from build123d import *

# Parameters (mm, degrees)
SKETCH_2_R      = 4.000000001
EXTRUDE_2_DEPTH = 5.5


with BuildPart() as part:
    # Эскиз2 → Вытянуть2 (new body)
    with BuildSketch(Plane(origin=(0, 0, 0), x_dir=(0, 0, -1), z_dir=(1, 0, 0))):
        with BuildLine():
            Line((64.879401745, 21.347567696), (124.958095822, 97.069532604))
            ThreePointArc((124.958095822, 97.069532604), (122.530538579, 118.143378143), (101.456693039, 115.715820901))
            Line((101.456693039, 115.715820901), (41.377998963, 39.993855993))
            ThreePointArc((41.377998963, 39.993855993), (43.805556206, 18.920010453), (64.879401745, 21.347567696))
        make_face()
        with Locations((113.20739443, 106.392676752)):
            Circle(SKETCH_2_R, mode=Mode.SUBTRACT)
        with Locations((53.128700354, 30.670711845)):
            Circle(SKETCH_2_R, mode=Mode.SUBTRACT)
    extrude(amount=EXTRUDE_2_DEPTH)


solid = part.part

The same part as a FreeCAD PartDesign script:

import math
import FreeCAD as App
import Part
import Sketcher

V = App.Vector
Q = App.Units.Quantity

doc = App.newDocument("Part")
body = doc.addObject("PartDesign::Body", "Body")

sketch1 = body.newObject("Sketcher::SketchObject", "Sketch")
sketch1.AttachmentSupport = (doc.getObject("YZ_Plane"), [""])
sketch1.MapMode = "FlatFace"
sketch1.addGeometry([
    Part.LineSegment(V(21.3, -64.9, 0), V(97.1, -125, 0)),
    Part.ArcOfCircle(Part.Circle(V(106.4, -113.2, 0), V(0, 0, 1), 15), math.radians(-128), math.radians(52)),
    Part.LineSegment(V(115.7, -101.5, 0), V(40, -41.4, 0)),
    Part.ArcOfCircle(Part.Circle(V(30.7, -53.1, 0), V(0, 0, 1), 15), math.radians(52), math.radians(232)),
    Part.Circle(V(30.7, -53.1, 0), V(0, 0, 1), 4),
    Part.Circle(V(106.4, -113.2, 0), V(0, 0, 1), 4),
], False)
sketch1.addConstraint([
    Sketcher.Constraint("Tangent", 0, 2, 1, 1),
    Sketcher.Constraint("Tangent", 1, 2, 2, 1),
    Sketcher.Constraint("Tangent", 2, 2, 3, 1),
    Sketcher.Constraint("Tangent", 3, 2, 0, 1),
    Sketcher.Constraint("Coincident", 4, 3, 3, 3),
    Sketcher.Constraint("Coincident", 5, 3, 1, 3),
    Sketcher.Constraint("Equal", 1, 3),
    Sketcher.Constraint("Equal", 4, 5),
    Sketcher.Constraint("Diameter", 4, Q("8 mm")),
    Sketcher.Constraint("Radius", 1, Q("15 mm")),
    Sketcher.Constraint("DistanceY", 2, 2, -1, 1, Q("41.377999 mm")),
    Sketcher.Constraint("DistanceY", 3, 3, -1, 1, Q("53.1287 mm")),
    Sketcher.Constraint("Distance", 0, Q("96.660568 mm")),
    Sketcher.Constraint("DistanceX", -1, 1, 3, 3, Q("30.670712 mm")),
])
pad1 = body.newObject("PartDesign::Pad", "Pad")
pad1.Profile = sketch1
pad1.Length = 5.5

doc.recompute()
